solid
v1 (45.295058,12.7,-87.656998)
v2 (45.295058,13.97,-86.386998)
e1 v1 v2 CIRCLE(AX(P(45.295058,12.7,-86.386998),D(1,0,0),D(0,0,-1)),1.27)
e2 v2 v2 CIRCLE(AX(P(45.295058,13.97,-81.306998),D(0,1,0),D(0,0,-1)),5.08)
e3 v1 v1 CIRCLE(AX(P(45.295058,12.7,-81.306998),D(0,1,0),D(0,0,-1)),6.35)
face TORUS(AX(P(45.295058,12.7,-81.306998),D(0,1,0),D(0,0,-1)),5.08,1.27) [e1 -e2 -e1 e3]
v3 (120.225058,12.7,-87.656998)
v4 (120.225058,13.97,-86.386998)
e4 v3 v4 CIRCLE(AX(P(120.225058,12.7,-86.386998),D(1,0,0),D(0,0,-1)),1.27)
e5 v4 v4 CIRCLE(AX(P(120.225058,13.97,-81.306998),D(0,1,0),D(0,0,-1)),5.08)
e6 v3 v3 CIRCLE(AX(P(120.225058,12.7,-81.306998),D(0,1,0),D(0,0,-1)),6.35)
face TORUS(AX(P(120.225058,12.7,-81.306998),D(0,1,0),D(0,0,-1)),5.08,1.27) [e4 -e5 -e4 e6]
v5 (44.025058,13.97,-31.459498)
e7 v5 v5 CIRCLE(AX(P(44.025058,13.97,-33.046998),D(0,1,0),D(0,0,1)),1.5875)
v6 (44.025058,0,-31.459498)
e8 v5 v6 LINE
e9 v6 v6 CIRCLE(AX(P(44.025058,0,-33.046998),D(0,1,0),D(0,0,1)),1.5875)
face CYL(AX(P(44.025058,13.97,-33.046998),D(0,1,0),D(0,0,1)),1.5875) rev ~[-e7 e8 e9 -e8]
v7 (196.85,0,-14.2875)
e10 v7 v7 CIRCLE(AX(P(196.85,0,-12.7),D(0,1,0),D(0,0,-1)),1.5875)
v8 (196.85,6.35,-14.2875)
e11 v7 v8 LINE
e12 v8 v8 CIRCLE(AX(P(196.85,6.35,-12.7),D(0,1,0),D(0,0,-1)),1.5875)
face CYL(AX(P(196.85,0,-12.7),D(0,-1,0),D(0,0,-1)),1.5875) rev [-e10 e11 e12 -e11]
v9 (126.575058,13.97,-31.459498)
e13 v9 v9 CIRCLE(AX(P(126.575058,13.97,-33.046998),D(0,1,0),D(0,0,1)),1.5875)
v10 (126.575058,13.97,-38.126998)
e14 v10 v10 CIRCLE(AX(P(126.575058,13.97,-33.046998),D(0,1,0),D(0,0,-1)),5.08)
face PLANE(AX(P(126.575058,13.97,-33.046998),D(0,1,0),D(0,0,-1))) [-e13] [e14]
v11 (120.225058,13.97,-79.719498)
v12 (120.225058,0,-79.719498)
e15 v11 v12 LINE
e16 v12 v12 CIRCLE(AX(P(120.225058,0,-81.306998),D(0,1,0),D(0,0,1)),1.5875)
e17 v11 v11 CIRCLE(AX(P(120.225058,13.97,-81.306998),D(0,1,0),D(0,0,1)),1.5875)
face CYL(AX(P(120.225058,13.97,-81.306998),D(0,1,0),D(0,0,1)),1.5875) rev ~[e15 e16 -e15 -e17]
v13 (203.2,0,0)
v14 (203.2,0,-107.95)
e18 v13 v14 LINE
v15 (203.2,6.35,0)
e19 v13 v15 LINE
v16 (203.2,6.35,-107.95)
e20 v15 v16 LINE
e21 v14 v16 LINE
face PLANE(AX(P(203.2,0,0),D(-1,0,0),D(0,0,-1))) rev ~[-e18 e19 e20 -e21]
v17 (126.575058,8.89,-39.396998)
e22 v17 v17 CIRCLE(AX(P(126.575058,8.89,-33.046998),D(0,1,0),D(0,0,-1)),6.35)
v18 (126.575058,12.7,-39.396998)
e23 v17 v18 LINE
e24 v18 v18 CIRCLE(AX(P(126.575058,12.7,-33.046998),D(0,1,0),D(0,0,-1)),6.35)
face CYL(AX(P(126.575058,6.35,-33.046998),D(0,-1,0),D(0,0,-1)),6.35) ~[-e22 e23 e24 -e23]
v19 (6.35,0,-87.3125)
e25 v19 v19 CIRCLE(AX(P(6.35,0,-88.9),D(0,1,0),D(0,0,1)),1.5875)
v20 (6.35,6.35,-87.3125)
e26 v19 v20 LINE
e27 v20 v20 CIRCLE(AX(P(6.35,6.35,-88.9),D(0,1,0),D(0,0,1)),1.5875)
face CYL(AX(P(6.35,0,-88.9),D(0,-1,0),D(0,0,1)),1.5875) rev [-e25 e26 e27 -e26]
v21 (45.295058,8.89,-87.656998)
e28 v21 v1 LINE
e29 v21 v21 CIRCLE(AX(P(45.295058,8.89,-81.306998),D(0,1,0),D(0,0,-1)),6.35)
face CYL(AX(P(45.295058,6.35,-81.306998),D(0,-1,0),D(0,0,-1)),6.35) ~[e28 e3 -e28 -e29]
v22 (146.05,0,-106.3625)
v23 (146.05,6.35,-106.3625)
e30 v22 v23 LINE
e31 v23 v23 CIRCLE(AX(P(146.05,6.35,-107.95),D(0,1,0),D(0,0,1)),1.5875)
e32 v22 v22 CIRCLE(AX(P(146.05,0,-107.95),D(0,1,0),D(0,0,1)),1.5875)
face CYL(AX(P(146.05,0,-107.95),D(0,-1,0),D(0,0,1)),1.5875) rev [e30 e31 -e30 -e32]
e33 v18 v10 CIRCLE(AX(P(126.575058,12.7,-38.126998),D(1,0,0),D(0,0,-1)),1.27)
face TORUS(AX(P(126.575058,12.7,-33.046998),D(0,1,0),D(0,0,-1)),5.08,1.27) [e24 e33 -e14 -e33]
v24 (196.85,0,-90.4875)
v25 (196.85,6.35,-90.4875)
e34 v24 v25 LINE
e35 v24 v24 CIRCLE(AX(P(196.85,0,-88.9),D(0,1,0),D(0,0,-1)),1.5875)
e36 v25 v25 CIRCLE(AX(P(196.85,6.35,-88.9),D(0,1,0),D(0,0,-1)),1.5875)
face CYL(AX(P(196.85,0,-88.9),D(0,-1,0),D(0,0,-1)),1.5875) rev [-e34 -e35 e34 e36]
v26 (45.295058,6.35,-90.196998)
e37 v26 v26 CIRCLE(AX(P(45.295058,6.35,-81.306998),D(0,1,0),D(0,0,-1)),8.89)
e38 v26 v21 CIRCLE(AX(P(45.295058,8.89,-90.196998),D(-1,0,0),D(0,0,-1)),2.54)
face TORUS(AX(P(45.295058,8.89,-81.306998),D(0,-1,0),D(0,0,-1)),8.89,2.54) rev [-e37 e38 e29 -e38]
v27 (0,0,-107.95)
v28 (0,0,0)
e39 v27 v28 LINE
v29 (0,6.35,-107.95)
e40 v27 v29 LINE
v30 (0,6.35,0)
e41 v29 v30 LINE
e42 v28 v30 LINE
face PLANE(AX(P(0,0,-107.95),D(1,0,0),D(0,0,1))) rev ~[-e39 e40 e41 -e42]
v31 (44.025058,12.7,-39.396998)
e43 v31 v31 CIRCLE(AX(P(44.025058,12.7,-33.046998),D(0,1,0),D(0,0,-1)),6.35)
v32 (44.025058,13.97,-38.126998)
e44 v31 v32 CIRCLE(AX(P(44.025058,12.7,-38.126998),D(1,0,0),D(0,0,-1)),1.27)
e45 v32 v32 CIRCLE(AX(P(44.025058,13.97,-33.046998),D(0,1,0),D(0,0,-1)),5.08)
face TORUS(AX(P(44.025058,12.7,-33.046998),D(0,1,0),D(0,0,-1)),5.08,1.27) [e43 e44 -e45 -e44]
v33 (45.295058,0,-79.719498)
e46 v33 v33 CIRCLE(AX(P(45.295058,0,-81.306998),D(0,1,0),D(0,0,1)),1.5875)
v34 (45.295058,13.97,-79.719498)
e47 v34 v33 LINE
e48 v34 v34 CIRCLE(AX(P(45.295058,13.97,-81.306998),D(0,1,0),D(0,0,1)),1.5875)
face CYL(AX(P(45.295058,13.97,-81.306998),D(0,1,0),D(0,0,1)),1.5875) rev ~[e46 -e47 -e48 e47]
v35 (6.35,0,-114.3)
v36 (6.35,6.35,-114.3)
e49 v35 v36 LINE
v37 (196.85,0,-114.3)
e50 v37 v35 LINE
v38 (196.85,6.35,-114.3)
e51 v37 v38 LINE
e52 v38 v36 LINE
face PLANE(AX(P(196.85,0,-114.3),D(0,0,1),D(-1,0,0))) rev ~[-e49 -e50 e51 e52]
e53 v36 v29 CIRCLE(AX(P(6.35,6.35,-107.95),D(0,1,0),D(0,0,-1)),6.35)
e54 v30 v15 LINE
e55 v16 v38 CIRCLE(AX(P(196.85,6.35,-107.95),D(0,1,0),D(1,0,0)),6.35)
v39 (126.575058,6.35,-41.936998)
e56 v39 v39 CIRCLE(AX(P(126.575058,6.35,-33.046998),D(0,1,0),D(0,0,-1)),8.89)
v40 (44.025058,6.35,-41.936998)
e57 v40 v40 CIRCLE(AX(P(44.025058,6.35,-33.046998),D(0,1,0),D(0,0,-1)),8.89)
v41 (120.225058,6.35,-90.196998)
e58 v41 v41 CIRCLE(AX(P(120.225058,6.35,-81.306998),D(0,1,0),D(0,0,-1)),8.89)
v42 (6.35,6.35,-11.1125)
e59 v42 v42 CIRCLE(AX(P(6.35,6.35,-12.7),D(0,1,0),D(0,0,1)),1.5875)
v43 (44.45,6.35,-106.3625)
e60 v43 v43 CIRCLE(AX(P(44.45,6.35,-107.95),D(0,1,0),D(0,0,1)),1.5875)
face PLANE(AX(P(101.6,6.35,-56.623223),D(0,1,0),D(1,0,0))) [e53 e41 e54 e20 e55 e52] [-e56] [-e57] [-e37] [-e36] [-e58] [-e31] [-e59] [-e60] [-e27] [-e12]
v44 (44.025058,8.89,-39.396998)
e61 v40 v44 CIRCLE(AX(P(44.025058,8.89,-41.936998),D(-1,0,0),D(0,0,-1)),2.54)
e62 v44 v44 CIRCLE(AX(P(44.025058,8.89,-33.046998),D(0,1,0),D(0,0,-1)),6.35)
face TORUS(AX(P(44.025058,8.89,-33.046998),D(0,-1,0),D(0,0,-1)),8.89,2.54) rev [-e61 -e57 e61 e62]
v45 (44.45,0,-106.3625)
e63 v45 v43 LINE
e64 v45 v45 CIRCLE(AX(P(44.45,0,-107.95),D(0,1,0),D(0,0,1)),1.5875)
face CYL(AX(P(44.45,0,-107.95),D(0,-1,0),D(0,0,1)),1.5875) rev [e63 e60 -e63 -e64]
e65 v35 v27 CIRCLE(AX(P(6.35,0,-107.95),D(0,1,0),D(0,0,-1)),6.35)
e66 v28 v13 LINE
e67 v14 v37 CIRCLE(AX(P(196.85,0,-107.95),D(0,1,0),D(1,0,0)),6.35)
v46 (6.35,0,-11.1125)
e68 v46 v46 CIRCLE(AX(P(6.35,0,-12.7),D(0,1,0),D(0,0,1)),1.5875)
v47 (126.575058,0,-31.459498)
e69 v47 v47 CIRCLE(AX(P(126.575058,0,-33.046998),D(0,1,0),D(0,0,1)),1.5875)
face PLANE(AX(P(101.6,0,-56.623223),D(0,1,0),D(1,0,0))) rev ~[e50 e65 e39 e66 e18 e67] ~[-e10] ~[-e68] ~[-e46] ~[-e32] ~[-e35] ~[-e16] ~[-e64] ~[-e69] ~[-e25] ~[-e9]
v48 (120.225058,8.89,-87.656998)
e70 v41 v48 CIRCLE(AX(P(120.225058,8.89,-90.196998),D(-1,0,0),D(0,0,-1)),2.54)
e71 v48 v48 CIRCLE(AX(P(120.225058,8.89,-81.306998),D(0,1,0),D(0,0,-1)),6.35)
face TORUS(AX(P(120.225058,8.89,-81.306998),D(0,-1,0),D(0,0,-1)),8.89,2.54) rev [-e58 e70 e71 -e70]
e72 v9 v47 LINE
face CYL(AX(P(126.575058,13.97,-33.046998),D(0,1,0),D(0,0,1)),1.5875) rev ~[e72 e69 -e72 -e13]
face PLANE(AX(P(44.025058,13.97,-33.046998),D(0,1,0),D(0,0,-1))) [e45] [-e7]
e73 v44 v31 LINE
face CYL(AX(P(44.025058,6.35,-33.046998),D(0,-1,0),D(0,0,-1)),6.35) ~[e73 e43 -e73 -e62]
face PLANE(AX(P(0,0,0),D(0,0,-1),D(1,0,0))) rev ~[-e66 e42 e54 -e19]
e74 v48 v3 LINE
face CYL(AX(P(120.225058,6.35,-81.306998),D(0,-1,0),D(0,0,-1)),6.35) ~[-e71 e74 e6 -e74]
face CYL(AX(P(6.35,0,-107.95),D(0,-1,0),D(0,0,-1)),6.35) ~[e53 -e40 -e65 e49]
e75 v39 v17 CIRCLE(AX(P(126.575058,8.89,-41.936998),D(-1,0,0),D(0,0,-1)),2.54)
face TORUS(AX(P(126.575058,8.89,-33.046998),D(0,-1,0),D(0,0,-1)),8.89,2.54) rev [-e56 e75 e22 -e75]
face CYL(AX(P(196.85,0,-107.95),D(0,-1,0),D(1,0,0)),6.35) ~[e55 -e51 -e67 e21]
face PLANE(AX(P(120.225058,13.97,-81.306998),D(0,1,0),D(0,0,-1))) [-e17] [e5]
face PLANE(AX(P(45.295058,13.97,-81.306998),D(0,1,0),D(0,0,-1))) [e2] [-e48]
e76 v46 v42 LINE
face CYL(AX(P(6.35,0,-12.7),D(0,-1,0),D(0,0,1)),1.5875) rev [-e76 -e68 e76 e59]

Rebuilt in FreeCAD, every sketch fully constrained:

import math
import FreeCAD as App
import Part
import Sketcher

V = App.Vector
Q = App.Units.Quantity


def edges_at(feature, points):
    """Names of the edges that pass closest to the given points."""
    edges = feature.Shape.Edges
    near = lambda p: min(range(len(edges)), key=lambda i: edges[i].distToShape(Part.Vertex(*p))[0])
    return sorted({f"Edge{near(p) + 1}" for p in points})

doc = App.newDocument("Part")
body = doc.addObject("PartDesign::Body", "Body")

# Sketch on XZ plane
sketch1 = doc.addObject("Sketcher::SketchObject", "Sketch")
body.addObject(sketch1)
sketch1.AttachmentSupport = (doc.XZ_Plane, [""])
sketch1.MapMode = "FlatFace"
sketch1.addGeometry([
    Part.LineSegment(V(0, 0, 0), V(203.2, 0, 0)),  # 0
    Part.LineSegment(V(203.2, 0, 0), V(203.2, -108, 0)),  # 1
    Part.ArcOfCircle(Part.Circle(V(196.9, -108, 0), V(0, 0, 1), 6.3), math.radians(-90), math.radians(0)),  # 2
    Part.LineSegment(V(196.8, -114.3, 0), V(6.3, -114.3, 0)),  # 3
    Part.ArcOfCircle(Part.Circle(V(6.3, -108, 0), V(0, 0, 1), 6.3), math.radians(180), math.radians(270)),  # 4
    Part.LineSegment(V(0, -108, 0), V(0, 0, 0)),  # 5
    Part.Circle(V(6.3, -12.7, 0), V(0, 0, 1), 1.6),  # 6
    Part.Circle(V(196.8, -12.7, 0), V(0, 0, 1), 1.6),  # 7
    Part.Circle(V(6.3, -88.9, 0), V(0, 0, 1), 1.6),  # 8
    Part.Circle(V(44.5, -108, 0), V(0, 0, 1), 1.6),  # 9
    Part.Circle(V(146.1, -108, 0), V(0, 0, 1), 1.6),  # 10
    Part.Circle(V(196.8, -88.9, 0), V(0, 0, 1), 1.6),  # 11
], False)
sketch1.addConstraint([
    Sketcher.Constraint("Coincident", 0, 2, 1, 1),
    Sketcher.Constraint("Tangent", 1, 2, 2, 2),
    Sketcher.Constraint("Tangent", 2, 1, 3, 1),
    Sketcher.Constraint("Tangent", 3, 2, 4, 2),
    Sketcher.Constraint("Tangent", 4, 1, 5, 1),
    Sketcher.Constraint("Coincident", 5, 2, 0, 1),
    Sketcher.Constraint("Horizontal", 0),
    Sketcher.Constraint("Vertical", 1),
    Sketcher.Constraint("Horizontal", 3),
    Sketcher.Constraint("Vertical", 5),
    Sketcher.Constraint("Coincident", 5, 2, -1, 1),
    Sketcher.Constraint("Equal", 2, 4),
    Sketcher.Constraint("Equal", 6, 7),
    Sketcher.Constraint("Equal", 7, 8),
    Sketcher.Constraint("Equal", 8, 9),
    Sketcher.Constraint("Equal", 9, 10),
    Sketcher.Constraint("Equal", 10, 11),
    Sketcher.Constraint("Horizontal", 6, 3, 7, 3),
    Sketcher.Constraint("Horizontal", 4, 3, 9, 3),
    Sketcher.Constraint("Horizontal", 9, 3, 10, 3),
    Sketcher.Constraint("Horizontal", 8, 3, 11, 3),
    Sketcher.Constraint("Vertical", 4, 3, 6, 3),
    Sketcher.Constraint("Vertical", 2, 3, 7, 3),
    Sketcher.Constraint("Vertical", 6, 3, 8, 3),
    Sketcher.Constraint("Vertical", 7, 3, 11, 3),
    Sketcher.Constraint("DistanceX", 0, 1, 0, 2, Q("8 in")),
    Sketcher.Constraint("Radius", 2, Q("0.25 in")),
    Sketcher.Constraint("Diameter", 6, Q("0.125 in")),
    Sketcher.Constraint("DistanceY", 8, 3, 6, 3, Q("3 in")),
    Sketcher.Constraint("DistanceX", 9, 3, 2, 3, Q("6 in")),
    Sketcher.Constraint("DistanceX", 10, 3, 2, 3, Q("2 in")),
    Sketcher.Constraint("DistanceY", 2, 1, 11, 3, Q("1 in")),
    Sketcher.Constraint("DistanceY", 1, 2, 1, 1, Q("4.25 in")),
])
pad1 = doc.addObject("PartDesign::Pad", "Pad")
body.addObject(pad1)
pad1.Profile = sketch1
pad1.Length = Q("0.25 in")
pad1.Reversed = True

# Sketch on XZ plane
sketch2 = doc.addObject("Sketcher::SketchObject", "Sketch001")
body.addObject(sketch2)
sketch2.AttachmentSupport = (doc.XZ_Plane, [""])
sketch2.MapMode = "FlatFace"
sketch2.AttachmentOffset = App.Placement(V(0, 0, -0.25 * 25.4), App.Rotation())
sketch2.addGeometry([
    Part.Circle(V(45, -81, 0), V(0, 0, 1), 6),
    Part.Circle(V(120, -81, 0), V(0, 0, 1), 6),
    Part.Circle(V(44, -33, 0), V(0, 0, 1), 6),
    Part.Circle(V(127, -33, 0), V(0, 0, 1), 6),
], False)
sketch2.addConstraint([
    Sketcher.Constraint("Equal", 0, 1),
    Sketcher.Constraint("Equal", 1, 2),
    Sketcher.Constraint("Equal", 2, 3),
    Sketcher.Constraint("Horizontal", 0, 3, 1, 3),
    Sketcher.Constraint("Horizontal", 2, 3, 3, 3),
    Sketcher.Constraint("Diameter", 0, Q("0.5 in")),
    Sketcher.Constraint("DistanceX", 2, 3, 1, 3, Q("3 in")),
    Sketcher.Constraint("DistanceY", 0, 3, 2, 3, Q("1.9 in")),
    Sketcher.Constraint("DistanceX", 0, 3, 3, 3, Q("3.2 in")),
    Sketcher.Constraint("DistanceX", 0, 3, 1, 3, Q("2.95 in")),
    Sketcher.Constraint("DistanceY", 0, 3, -1, 1, 81.306998),
    Sketcher.Constraint("DistanceX", -1, 1, 0, 3, 45.295058),
])
pad2 = doc.addObject("PartDesign::Pad", "Pad001")
body.addObject(pad2)
pad2.Profile = sketch2
pad2.Length = Q("0.3 in")
pad2.Reversed = True
doc.recompute()

fillet = doc.addObject("PartDesign::Fillet", "Fillet")
body.addObject(fillet)
fillet.Base = (pad2, edges_at(pad2, [
    (45.295, 6.35, -74.957),
    (120.225, 6.35, -74.957),
    (44.025, 6.35, -26.697),
    (126.575, 6.35, -26.697),
]))
fillet.Radius = Q("0.1 in")
doc.recompute()

fillet2 = doc.addObject("PartDesign::Fillet", "Fillet001")
body.addObject(fillet2)
fillet2.Base = (fillet, edges_at(fillet, [
    (45.295, 13.97, -74.957),
    (120.225, 13.97, -74.957),
    (44.025, 13.97, -26.697),
    (126.575, 13.97, -26.697),
]))
fillet2.Radius = Q("0.05 in")

# Sketch on XZ plane
sketch3 = doc.addObject("Sketcher::SketchObject", "Sketch002")
body.addObject(sketch3)
sketch3.AttachmentSupport = (doc.XZ_Plane, [""])
sketch3.MapMode = "FlatFace"
sketch3.AttachmentOffset = App.Placement(V(0, 0, -0.55 * 25.4), App.Rotation())
sketch3.addGeometry([
    Part.Circle(V(45.3, -81.3, 0), V(0, 0, 1), 1.6),
    Part.Circle(V(120.2, -81.3, 0), V(0, 0, 1), 1.6),
    Part.Circle(V(126.6, -33, 0), V(0, 0, 1), 1.6),
    Part.Circle(V(44, -33, 0), V(0, 0, 1), 1.6),
], False)
sketch3.addConstraint([
    Sketcher.Constraint("Equal", 0, 1),
    Sketcher.Constraint("Equal", 1, 2),
    Sketcher.Constraint("Equal", 2, 3),
    Sketcher.Constraint("Horizontal", 0, 3, 1, 3),
    Sketcher.Constraint("Horizontal", 2, 3, 3, 3),
    Sketcher.Constraint("Diameter", 0, Q("0.125 in")),
    Sketcher.Constraint("DistanceX", 3, 3, 1, 3, Q("3 in")),
    Sketcher.Constraint("DistanceY", 1, 3, 2, 3, Q("1.9 in")),
    Sketcher.Constraint("DistanceX", 0, 3, 2, 3, Q("3.2 in")),
    Sketcher.Constraint("DistanceX", 0, 3, 1, 3, Q("2.95 in")),
    Sketcher.Constraint("DistanceY", 0, 3, -1, 1, 81.306998),
    Sketcher.Constraint("DistanceX", -1, 1, 0, 3, 45.295058),
])
pocket1 = doc.addObject("PartDesign::Pocket", "Pocket")
body.addObject(pocket1)
pocket1.Profile = sketch3
pocket1.Type = "ThroughAll"
pocket1.Reversed = True

doc.recompute()
